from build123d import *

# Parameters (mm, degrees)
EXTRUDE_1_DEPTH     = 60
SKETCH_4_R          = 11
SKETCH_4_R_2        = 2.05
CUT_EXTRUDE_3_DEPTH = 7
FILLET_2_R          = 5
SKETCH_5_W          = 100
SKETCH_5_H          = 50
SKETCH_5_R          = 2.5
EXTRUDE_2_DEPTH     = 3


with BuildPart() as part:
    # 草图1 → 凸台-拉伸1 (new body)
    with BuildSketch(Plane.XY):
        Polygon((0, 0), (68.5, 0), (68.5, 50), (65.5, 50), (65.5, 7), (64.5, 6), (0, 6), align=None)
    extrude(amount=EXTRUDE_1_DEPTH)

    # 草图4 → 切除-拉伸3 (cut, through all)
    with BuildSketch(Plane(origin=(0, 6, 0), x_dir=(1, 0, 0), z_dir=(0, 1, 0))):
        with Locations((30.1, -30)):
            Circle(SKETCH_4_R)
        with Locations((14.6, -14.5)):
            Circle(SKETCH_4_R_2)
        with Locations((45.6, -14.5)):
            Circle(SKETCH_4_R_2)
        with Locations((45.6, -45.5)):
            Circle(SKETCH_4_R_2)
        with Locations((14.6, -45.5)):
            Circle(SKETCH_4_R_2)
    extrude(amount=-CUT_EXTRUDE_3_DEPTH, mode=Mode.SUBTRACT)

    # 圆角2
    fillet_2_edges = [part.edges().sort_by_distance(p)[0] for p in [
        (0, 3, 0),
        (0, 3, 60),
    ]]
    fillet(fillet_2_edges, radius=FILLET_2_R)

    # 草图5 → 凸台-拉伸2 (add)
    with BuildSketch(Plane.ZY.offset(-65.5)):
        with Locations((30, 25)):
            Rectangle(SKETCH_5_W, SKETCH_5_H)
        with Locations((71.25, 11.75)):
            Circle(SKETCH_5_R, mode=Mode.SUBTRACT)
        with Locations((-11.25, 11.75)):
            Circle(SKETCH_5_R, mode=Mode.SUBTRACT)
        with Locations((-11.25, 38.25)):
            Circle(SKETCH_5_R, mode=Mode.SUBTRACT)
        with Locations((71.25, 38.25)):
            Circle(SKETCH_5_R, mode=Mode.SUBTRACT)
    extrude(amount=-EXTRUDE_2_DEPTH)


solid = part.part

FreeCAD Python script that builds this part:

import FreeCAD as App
import Part
import Sketcher
from FreeCAD import Vector
Q = App.Units.Quantity


def edges_at(feature, points):
    """Names of the edges that pass closest to the given points."""
    edges = feature.Shape.Edges
    near = lambda p: min(range(len(edges)), key=lambda i: edges[i].distToShape(Part.Vertex(*p))[0])
    return sorted({f"Edge{near(p) + 1}" for p in points})


def add_polygon(sketch, points):
    """Adds a closed chain of lines whose ends are joined by coincident constraints."""
    first, n = sketch.GeometryCount, len(points)
    for a, b in zip(points, points[1:] + points[:1]):
        sketch.addGeometry(Part.LineSegment(App.Vector(*a, 0), App.Vector(*b, 0)), False)
    for i in range(n):
        sketch.addConstraint(Sketcher.Constraint("Coincident", first + i, 2, first + (i + 1) % n, 1))

doc = App.newDocument("Part")
body = doc.addObject("PartDesign::Body", "Body")

# Sketch on XY plane
sketch1 = body.newObject("Sketcher::SketchObject", "Sketch")
sketch1.AttachmentSupport = (doc.getObject("XY_Plane"), [""])
sketch1.MapMode = "FlatFace"
add_polygon(sketch1, [(0, 0), (68.5, 0), (68.5, 50), (65.5, 50), (65.5, 7), (64.5, 6), (0, 6)])  # lines 0-6
sketch1.addConstraint([
    Sketcher.Constraint("Horizontal", 0),
    Sketcher.Constraint("Vertical", 1),
    Sketcher.Constraint("Horizontal", 2),
    Sketcher.Constraint("Vertical", 3),
    Sketcher.Constraint("Horizontal", 5),
    Sketcher.Constraint("Vertical", 6),
    Sketcher.Constraint("Coincident", 6, 2, -1, 1),
    Sketcher.Constraint("DistanceX", 2, 2, 2, 1, 3.0),
    Sketcher.Constraint("DistanceY", 1, 1, 1, 2, 50.0),
    Sketcher.Constraint("DistanceY", 3, 2, 3, 1, 43.0),
    Sketcher.Constraint("DistanceY", 6, 2, 6, 1, 6.0),
    Sketcher.Constraint("Angle", 4, Q("-135 deg")),
    Sketcher.Constraint("DistanceX", 0, 1, 0, 2, 68.5),
])
pad1 = body.newObject("PartDesign::Pad", "Pad")
pad1.Profile = sketch1
pad1.Length = 60

# Sketch on XZ plane
sketch2 = body.newObject("Sketcher::SketchObject", "Sketch001")
sketch2.AttachmentSupport = (doc.getObject("XZ_Plane"), [""])
sketch2.MapMode = "FlatFace"
sketch2.AttachmentOffset = App.Placement(Vector(0, 0, -6), App.Rotation())
sketch2.addGeometry([
    Part.Circle(Vector(30.1, 30, 0), Vector(0, 0, 1), 11),  # 0
    Part.Circle(Vector(14.6, 14.5, 0), Vector(0, 0, 1), 2),  # 1
    Part.Circle(Vector(45.6, 14.5, 0), Vector(0, 0, 1), 2),  # 2
    Part.Circle(Vector(45.6, 45.5, 0), Vector(0, 0, 1), 2),  # 3
    Part.Circle(Vector(14.6, 45.5, 0), Vector(0, 0, 1), 2),  # 4
], False)
sketch2.addConstraint([
    Sketcher.Constraint("Equal", 1, 2),
    Sketcher.Constraint("Equal", 2, 3),
    Sketcher.Constraint("Equal", 3, 4),
    Sketcher.Constraint("Horizontal", 1, 3, 2, 3),
    Sketcher.Constraint("Horizontal", 3, 3, 4, 3),
    Sketcher.Constraint("Vertical", 2, 3, 3, 3),
    Sketcher.Constraint("Vertical", 1, 3, 4, 3),
    Sketcher.Constraint("Diameter", 0, 22.0),
    Sketcher.Constraint("Diameter", 1, 4.1),
    Sketcher.Constraint("DistanceY", -1, 1, 0, 3, 30.0),
    Sketcher.Constraint("DistanceX", 1, 3, 2, 3, 31.0),
    Sketcher.Constraint("DistanceY", 2, 3, 3, 3, 31.0),
    Sketcher.Constraint("DistanceX", -1, 1, 0, 3, 30.1),
    Sketcher.Constraint("DistanceX", -1, 1, 1, 3, 14.6),
    Sketcher.Constraint("DistanceY", -1, 1, 1, 3, 14.5),
])
pocket1 = body.newObject("PartDesign::Pocket", "Pocket")
pocket1.Profile = sketch2
pocket1.Type = "ThroughAll"
pocket1.Reversed = True
doc.recompute()

fillet = body.newObject("PartDesign::Fillet", "Fillet")
fillet.Base = (pocket1, edges_at(pocket1, [(0, 3, 0), (0, 3, 60)]))
fillet.Radius = 5

# Sketch on YZ plane
sketch3 = body.newObject("Sketcher::SketchObject", "Sketch002")
sketch3.AttachmentSupport = (doc.getObject("YZ_Plane"), [""])
sketch3.MapMode = "FlatFace"
sketch3.AttachmentOffset = App.Placement(Vector(0, 0, 65.5), App.Rotation())
add_polygon(sketch3, [(50, -20), (0, -20), (0, 80), (50, 80)])  # lines 0-3
sketch3.addGeometry(Part.Circle(Vector(11.8, -11.2, 0), Vector(0, 0, 1), 2.5), False)  # 4
sketch3.addGeometry(Part.Circle(Vector(11.8, 71.2, 0), Vector(0, 0, 1), 2.5), False)  # 5
sketch3.addGeometry(Part.Circle(Vector(38.2, -11.2, 0), Vector(0, 0, 1), 2.5), False)  # 6
sketch3.addGeometry(Part.Circle(Vector(38.2, 71.2, 0), Vector(0, 0, 1), 2.5), False)  # 7
sketch3.addConstraint([
    Sketcher.Constraint("Horizontal", 0),
    Sketcher.Constraint("Vertical", 1),
    Sketcher.Constraint("Horizontal", 2),
    Sketcher.Constraint("Vertical", 3),
    Sketcher.Constraint("Equal", 4, 5),
    Sketcher.Constraint("Equal", 5, 6),
    Sketcher.Constraint("Equal", 6, 7),
    Sketcher.Constraint("PointOnObject", 0, 2, -2),
    Sketcher.Constraint("Horizontal", 4, 3, 6, 3),
    Sketcher.Constraint("Horizontal", 5, 3, 7, 3),
    Sketcher.Constraint("Vertical", 4, 3, 5, 3),
    Sketcher.Constraint("Vertical", 6, 3, 7, 3),
    Sketcher.Constraint("Diameter", 4, 5.0),
    Sketcher.Constraint("DistanceX", 0, 2, 0, 1, 50.0),
    Sketcher.Constraint("DistanceY", 1, 1, 1, 2, 100.0),
    Sketcher.Constraint("DistanceY", 0, 2, -1, 1, 20.0),
    Sketcher.Constraint("DistanceY", 4, 3, 5, 3, 82.5),
    Sketcher.Constraint("DistanceX", 4, 3, 6, 3, 26.5),
    Sketcher.Constraint("DistanceX", -1, 1, 4, 3, 11.75),
    Sketcher.Constraint("DistanceY", 4, 3, -1, 1, 11.25),
])
pad2 = body.newObject("PartDesign::Pad", "Pad001")
pad2.Profile = sketch3
pad2.Length = 3

doc.recompute()
